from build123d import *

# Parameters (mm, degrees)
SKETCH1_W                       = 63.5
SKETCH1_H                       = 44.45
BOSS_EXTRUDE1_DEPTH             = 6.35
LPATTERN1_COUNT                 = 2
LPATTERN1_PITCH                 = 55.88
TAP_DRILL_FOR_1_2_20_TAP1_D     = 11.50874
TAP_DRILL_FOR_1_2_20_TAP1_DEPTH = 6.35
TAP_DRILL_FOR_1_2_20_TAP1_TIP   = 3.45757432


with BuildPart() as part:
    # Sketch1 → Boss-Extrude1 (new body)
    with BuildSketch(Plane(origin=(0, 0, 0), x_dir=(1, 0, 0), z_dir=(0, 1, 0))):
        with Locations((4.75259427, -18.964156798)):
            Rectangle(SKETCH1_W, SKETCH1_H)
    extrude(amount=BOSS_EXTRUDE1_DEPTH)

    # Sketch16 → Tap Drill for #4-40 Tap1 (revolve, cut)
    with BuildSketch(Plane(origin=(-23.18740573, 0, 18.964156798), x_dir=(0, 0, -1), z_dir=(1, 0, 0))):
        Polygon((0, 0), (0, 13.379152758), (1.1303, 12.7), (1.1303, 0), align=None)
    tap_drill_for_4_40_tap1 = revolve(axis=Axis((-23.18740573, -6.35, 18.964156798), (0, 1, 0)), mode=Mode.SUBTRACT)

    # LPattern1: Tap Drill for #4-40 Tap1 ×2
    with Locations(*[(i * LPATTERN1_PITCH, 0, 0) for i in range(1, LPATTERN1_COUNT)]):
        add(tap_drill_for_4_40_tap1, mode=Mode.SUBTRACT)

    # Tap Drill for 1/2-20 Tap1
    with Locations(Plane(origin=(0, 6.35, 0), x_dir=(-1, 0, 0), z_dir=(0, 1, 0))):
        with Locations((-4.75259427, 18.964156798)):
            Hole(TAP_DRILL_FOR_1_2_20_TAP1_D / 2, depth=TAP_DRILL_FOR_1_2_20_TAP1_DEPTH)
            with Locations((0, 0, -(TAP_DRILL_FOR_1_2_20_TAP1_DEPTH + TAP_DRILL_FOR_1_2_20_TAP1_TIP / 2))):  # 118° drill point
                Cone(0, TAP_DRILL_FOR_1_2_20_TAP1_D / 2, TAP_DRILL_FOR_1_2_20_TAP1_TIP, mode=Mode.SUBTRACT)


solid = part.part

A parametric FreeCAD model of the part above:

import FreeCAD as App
import Part
import Sketcher
Q = App.Units.Quantity

doc = App.newDocument("Part")
body = doc.addObject("PartDesign::Body", "Body")

# Sketch on XZ plane
sketch1 = doc.addObject("Sketcher::SketchObject", "Sketch")
body.addObject(sketch1)
sketch1.AttachmentSupport = (doc.XZ_Plane, [""])
sketch1.MapMode = "FlatFace"
sketch1.addGeometry([
    Part.LineSegment(App.Vector(-27, -3, 0), App.Vector(-27, 41, 0)),
    Part.LineSegment(App.Vector(-27, 41, 0), App.Vector(37, 41, 0)),
    Part.LineSegment(App.Vector(37, 41, 0), App.Vector(37, -3, 0)),
    Part.LineSegment(App.Vector(37, -3, 0), App.Vector(-27, -3, 0)),
], False)
sketch1.addConstraint([
    Sketcher.Constraint("Coincident", 0, 2, 1, 1),
    Sketcher.Constraint("Coincident", 1, 2, 2, 1),
    Sketcher.Constraint("Coincident", 2, 2, 3, 1),
    Sketcher.Constraint("Coincident", 3, 2, 0, 1),
    Sketcher.Constraint("Vertical", 0),
    Sketcher.Constraint("Horizontal", 1),
    Sketcher.Constraint("Vertical", 2),
    Sketcher.Constraint("Horizontal", 3),
    Sketcher.Constraint("DistanceX", 1, 1, 1, 2, Q("2.5 in")),
    Sketcher.Constraint("DistanceY", 0, 1, 0, 2, Q("1.75 in")),
    Sketcher.Constraint("DistanceX", 0, 2, -1, 1, 26.997406),
    Sketcher.Constraint("DistanceY", -1, 1, 0, 2, 41.189157),
])
pad1 = doc.addObject("PartDesign::Pad", "Pad")
body.addObject(pad1)
pad1.Profile = sketch1
pad1.Length = Q("0.25 in")
pad1.Reversed = True

# Sketch on YZ plane
sketch2 = doc.addObject("Sketcher::SketchObject", "Sketch001")
body.addObject(sketch2)
sketch2.AttachmentSupport = (doc.YZ_Plane, [""])
sketch2.MapMode = "FlatFace"
sketch2.AttachmentOffset = App.Placement(App.Vector(0, 0, -23.187406), App.Rotation())
sketch2.addGeometry([
    Part.LineSegment(App.Vector(13.4, 19, 0), App.Vector(0, 19, 0)),
    Part.LineSegment(App.Vector(0, 19, 0), App.Vector(0, 17.8, 0)),
    Part.LineSegment(App.Vector(0, 17.8, 0), App.Vector(12.7, 17.8, 0)),
    Part.LineSegment(App.Vector(12.7, 17.8, 0), App.Vector(13.4, 19, 0)),
], False)
sketch2.addGeometry(Part.LineSegment(App.Vector(0, 19, 0), App.Vector(13.4, 19, 0)), True)  # axis
sketch2.addConstraint([
    Sketcher.Constraint("Coincident", 0, 2, 1, 1),
    Sketcher.Constraint("Coincident", 1, 2, 2, 1),
    Sketcher.Constraint("Coincident", 2, 2, 3, 1),
    Sketcher.Constraint("Coincident", 3, 2, 0, 1),
    Sketcher.Constraint("Horizontal", 0),
    Sketcher.Constraint("Vertical", 1),
    Sketcher.Constraint("Horizontal", 2),
    Sketcher.Constraint("Horizontal", 4),
    Sketcher.Constraint("Coincident", 4, 1, 0, 2),
    Sketcher.Constraint("PointOnObject", 0, 2, -2),
    Sketcher.Constraint("Equal", 0, 4),
    Sketcher.Constraint("DistanceX", 2, 1, 2, 2, Q("0.5 in")),
    Sketcher.Constraint("Angle", 3, Q("59 deg")),
    Sketcher.Constraint("DistanceY", 1, 2, 1, 1, Q("0.0445 in")),
    Sketcher.Constraint("DistanceY", -1, 1, 0, 2, 18.964157),
])
groove = doc.addObject("PartDesign::Groove", "Groove")
body.addObject(groove)
groove.Profile = sketch2
groove.ReferenceAxis = (sketch2, ["Axis0"])
groove.Angle = 360
doc.recompute()

linearpattern = doc.addObject("PartDesign::LinearPattern", "LinearPattern")
body.addObject(linearpattern)
linearpattern.Originals = [groove]
linearpattern.Direction = (doc.X_Axis, [""])
linearpattern.Mode = "offset"
linearpattern.Offset = Q("2.2 in")
linearpattern.Occurrences = 2
body.Tip = linearpattern

# Sketch on XZ plane
sketch3 = doc.addObject("Sketcher::SketchObject", "Sketch002")
body.addObject(sketch3)
sketch3.AttachmentSupport = (doc.XZ_Plane, [""])
sketch3.MapMode = "FlatFace"
sketch3.AttachmentOffset = App.Placement(App.Vector(0, 0, -0.25 * 25.4), App.Rotation())
sketch3.addGeometry(Part.Circle(App.Vector(5, 19, 0), App.Vector(0, 0, 1), 6), False)
sketch3.addConstraint([
    Sketcher.Constraint("Diameter", 0, Q("0.4531 in")),
    Sketcher.Constraint("DistanceX", -1, 1, 0, 3, 4.752594),
    Sketcher.Constraint("DistanceY", -1, 1, 0, 3, 18.964157),
])
doc.recompute()
hole = doc.addObject("PartDesign::Hole", "Hole")
body.addObject(hole)
hole.Profile = sketch3
hole.ThreadType = "None"
hole.Diameter = Q("0.4531 in")
hole.DepthType = "Dimension"
hole.Depth = Q("0.25 in")
hole.DrillPoint = "Angled"
hole.DrillPointAngle = 118
hole.Reversed = True

doc.recompute()
